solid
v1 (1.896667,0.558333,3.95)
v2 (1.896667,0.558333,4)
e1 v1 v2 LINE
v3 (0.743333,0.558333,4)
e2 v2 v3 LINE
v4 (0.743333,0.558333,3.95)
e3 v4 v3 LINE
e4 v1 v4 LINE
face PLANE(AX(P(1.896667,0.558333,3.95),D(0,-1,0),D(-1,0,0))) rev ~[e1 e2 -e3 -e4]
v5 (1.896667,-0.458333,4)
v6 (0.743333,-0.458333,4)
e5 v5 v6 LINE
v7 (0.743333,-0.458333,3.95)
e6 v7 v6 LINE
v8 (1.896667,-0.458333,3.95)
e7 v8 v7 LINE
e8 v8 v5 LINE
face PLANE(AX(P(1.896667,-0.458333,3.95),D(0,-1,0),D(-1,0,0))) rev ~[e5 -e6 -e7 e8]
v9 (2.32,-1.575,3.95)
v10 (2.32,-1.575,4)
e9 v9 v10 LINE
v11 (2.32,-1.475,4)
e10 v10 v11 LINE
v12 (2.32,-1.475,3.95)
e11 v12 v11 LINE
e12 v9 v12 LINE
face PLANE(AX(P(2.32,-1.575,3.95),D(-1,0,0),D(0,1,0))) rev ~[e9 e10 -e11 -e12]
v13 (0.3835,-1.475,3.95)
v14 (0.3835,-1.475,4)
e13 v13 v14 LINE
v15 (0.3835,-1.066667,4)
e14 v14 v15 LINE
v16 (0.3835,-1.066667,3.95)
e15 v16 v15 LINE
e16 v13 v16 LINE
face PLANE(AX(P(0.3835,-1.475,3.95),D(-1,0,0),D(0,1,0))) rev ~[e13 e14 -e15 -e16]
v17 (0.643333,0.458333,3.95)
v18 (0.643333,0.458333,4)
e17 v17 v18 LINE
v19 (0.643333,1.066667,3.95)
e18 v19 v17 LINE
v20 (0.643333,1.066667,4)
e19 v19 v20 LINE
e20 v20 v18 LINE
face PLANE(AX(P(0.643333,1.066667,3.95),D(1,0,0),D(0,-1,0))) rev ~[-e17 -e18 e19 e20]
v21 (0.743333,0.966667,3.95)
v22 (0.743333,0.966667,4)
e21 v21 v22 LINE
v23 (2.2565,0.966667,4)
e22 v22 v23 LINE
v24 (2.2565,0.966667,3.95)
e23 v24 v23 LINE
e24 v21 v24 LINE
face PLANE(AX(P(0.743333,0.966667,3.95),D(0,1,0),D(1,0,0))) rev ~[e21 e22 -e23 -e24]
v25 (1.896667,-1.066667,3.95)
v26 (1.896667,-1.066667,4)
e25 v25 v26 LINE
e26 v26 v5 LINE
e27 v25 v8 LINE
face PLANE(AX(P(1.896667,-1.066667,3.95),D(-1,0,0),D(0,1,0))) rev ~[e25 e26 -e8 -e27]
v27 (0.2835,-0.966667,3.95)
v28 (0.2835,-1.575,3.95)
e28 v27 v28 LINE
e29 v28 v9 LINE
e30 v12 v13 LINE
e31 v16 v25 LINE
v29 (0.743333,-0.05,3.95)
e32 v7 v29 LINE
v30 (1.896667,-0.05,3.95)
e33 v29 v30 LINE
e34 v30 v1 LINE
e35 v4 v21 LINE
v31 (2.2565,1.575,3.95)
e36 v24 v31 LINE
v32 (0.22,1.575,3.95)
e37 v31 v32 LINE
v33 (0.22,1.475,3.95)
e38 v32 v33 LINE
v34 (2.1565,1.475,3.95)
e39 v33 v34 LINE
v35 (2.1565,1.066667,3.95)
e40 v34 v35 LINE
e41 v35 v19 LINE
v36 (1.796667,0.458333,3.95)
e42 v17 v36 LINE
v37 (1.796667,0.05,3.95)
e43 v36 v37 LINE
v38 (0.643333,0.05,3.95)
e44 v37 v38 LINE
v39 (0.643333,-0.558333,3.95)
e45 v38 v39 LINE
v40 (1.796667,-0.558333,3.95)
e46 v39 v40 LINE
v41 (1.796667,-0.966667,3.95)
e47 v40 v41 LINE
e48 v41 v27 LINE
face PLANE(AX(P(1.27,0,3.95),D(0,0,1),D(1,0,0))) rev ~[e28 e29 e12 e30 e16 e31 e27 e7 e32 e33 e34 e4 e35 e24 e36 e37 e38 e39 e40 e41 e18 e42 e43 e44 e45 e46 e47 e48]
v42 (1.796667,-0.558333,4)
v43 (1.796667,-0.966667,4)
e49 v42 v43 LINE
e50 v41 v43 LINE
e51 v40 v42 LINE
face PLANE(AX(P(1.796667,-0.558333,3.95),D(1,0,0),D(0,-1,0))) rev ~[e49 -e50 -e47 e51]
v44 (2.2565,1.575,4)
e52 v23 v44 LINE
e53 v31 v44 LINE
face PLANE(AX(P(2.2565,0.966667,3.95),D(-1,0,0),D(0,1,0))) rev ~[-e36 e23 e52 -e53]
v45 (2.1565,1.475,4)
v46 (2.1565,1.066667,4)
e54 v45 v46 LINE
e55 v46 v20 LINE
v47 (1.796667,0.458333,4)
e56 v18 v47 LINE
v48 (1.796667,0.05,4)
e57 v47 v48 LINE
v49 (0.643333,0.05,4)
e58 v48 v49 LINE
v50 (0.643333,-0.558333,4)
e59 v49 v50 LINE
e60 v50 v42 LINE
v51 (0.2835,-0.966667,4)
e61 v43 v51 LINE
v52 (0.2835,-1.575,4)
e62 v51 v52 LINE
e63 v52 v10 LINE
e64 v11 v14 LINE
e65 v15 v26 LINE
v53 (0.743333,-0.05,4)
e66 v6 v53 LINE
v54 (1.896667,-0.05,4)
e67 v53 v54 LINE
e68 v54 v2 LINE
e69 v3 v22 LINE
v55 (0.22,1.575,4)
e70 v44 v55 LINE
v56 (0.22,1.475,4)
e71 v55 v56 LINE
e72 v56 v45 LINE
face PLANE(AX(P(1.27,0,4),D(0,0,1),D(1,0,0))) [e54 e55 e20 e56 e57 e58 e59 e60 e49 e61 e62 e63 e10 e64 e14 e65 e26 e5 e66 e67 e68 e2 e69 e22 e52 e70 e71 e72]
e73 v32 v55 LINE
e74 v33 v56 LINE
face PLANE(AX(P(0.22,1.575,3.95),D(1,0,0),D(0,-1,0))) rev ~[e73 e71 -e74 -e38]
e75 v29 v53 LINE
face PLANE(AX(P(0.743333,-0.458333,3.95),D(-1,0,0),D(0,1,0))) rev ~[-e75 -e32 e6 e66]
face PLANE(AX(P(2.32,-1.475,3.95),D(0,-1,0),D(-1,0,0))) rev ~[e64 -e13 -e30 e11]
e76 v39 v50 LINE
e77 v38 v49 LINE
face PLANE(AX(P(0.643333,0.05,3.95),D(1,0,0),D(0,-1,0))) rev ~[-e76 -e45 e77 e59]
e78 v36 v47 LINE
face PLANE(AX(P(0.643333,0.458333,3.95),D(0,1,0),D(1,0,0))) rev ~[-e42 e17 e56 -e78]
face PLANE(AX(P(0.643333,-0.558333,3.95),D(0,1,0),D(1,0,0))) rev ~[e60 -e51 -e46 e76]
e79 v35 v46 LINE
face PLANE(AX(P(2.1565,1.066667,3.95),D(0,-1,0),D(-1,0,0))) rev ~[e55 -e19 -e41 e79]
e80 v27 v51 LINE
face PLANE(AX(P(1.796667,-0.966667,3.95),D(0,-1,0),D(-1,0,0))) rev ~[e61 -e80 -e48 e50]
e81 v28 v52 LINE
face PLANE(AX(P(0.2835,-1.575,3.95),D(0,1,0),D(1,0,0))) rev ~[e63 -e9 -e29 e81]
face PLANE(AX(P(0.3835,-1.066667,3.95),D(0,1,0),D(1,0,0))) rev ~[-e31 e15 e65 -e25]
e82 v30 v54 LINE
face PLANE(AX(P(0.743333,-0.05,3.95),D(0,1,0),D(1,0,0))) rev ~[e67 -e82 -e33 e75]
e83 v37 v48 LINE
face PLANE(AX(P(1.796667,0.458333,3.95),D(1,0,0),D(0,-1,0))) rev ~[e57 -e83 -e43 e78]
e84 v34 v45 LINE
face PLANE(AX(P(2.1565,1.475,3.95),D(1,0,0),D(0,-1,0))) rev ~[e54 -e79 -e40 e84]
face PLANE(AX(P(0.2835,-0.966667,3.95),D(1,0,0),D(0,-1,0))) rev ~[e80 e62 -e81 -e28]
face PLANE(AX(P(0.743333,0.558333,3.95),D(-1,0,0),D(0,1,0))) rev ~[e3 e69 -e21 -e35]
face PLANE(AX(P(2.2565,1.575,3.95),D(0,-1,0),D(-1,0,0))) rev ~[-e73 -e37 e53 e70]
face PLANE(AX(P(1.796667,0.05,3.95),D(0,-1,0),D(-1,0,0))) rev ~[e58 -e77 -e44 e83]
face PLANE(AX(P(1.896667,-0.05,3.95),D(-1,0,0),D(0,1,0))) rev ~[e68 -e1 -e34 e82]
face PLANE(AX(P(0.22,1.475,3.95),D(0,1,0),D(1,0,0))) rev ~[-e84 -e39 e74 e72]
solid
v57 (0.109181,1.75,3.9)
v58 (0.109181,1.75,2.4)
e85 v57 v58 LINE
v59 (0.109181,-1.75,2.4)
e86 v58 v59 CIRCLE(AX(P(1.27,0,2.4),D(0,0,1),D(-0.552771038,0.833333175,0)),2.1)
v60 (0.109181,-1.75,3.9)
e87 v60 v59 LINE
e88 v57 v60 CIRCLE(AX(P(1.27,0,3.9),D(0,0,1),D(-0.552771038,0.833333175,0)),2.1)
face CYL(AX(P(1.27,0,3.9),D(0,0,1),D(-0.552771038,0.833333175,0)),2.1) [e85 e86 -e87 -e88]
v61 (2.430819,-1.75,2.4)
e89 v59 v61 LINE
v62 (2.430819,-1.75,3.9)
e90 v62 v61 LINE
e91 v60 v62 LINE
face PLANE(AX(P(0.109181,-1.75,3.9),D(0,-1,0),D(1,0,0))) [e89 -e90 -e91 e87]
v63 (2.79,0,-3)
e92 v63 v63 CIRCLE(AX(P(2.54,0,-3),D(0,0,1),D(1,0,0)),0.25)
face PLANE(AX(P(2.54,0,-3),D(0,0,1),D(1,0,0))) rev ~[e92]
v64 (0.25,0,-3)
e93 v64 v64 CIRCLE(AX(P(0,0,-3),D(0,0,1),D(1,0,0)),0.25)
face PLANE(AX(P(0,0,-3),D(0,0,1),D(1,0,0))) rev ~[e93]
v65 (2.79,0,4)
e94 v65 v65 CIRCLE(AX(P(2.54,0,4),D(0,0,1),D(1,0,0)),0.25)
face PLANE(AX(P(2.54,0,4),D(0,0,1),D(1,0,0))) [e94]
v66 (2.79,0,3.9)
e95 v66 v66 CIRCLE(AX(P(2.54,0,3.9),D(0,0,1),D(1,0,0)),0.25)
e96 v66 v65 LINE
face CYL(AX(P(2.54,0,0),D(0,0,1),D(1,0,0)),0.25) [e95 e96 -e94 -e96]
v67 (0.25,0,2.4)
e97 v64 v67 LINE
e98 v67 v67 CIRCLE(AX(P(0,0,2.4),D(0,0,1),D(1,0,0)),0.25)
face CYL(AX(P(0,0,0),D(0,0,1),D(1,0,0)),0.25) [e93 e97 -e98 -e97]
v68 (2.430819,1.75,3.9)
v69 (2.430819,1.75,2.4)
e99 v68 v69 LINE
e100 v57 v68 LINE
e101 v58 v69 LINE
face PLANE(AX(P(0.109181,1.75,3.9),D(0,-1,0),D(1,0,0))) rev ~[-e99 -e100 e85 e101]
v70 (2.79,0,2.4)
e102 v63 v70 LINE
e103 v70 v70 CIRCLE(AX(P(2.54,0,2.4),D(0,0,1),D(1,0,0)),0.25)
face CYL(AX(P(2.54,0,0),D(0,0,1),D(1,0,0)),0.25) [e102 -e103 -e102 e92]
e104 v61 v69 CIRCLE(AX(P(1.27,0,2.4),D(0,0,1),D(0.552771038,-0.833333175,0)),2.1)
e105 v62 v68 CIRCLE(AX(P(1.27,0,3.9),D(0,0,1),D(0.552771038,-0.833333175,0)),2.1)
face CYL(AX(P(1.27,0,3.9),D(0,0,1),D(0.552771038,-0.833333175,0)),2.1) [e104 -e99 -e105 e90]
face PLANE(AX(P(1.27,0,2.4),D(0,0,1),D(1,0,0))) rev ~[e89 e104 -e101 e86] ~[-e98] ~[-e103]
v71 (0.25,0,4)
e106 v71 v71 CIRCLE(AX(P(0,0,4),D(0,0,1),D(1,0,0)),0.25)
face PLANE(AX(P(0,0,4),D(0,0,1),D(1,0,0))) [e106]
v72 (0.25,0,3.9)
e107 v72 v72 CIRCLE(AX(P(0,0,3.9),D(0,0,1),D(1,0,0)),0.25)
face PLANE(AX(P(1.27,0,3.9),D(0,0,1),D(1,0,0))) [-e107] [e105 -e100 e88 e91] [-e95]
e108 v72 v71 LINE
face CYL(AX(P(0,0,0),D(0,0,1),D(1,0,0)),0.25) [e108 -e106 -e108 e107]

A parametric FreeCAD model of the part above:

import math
import FreeCAD as App
import Part
import Sketcher
from FreeCAD import Vector
Q = App.Units.Quantity

doc = App.newDocument("Part")
body = doc.addObject("PartDesign::Body", "Body")

sketch1 = body.newObject("Sketcher::SketchObject", "Sketch")
sketch1.AttachmentSupport = (doc.getObject("XY_Plane"), [""])
sketch1.MapMode = "FlatFace"
sketch1.AttachmentOffset = App.Placement(Vector(0, 0, 3.9), App.Rotation())
sketch1.addGeometry(Part.ArcOfCircle(Part.Circle(Vector(1.3, 0, 0), Vector(0, 0, 1), 2.1), math.radians(124), math.radians(236)), False)
sketch1.addGeometry(Part.LineSegment(Vector(0.1, -1.8, 0), Vector(2.4, -1.8, 0)), False)
sketch1.addGeometry(Part.ArcOfCircle(Part.Circle(Vector(1.3, 0, 0), Vector(0, 0, 1), 2.1), math.radians(-56), math.radians(56)), False)
sketch1.addGeometry(Part.LineSegment(Vector(2.4, 1.8, 0), Vector(0.1, 1.8, 0)), False)
sketch1.addConstraint(Sketcher.Constraint("Coincident", 0, 2, 1, 1))
sketch1.addConstraint(Sketcher.Constraint("Coincident", 1, 2, 2, 1))
sketch1.addConstraint(Sketcher.Constraint("Coincident", 2, 2, 3, 1))
sketch1.addConstraint(Sketcher.Constraint("Coincident", 3, 2, 0, 1))
sketch1.addConstraint(Sketcher.Constraint("Horizontal", 1))
sketch1.addConstraint(Sketcher.Constraint("Horizontal", 3))
sketch1.addConstraint(Sketcher.Constraint("Coincident", 2, 3, 0, 3))
sketch1.addConstraint(Sketcher.Constraint("Equal", 0, 2))
sketch1.addConstraint(Sketcher.Constraint("Symmetric", 1, 2, 2, 2, -1))
sketch1.addConstraint(Sketcher.Constraint("Radius", 0, Q("2.1 mm")))
sketch1.addConstraint(Sketcher.Constraint("DistanceY", 1, 2, 2, 2, Q("3.5 mm")))
sketch1.addConstraint(Sketcher.Constraint("DistanceX", -1, 1, 0, 3, Q("1.27 mm")))
pad1 = body.newObject("PartDesign::Pad", "Pad")
pad1.Profile = sketch1
pad1.Length = 1.5
pad1.Reversed = True
body2 = doc.addObject("PartDesign::Body", "Body001")
body2.AllowCompound = True

sketch2 = body2.newObject("Sketcher::SketchObject", "Sketch001")
sketch2.AttachmentSupport = (doc.getObject("XY_Plane001"), [""])
sketch2.MapMode = "FlatFace"
sketch2.addGeometry(Part.Circle(Vector(0, 0, 0), Vector(0, 0, 1), 0.25), False)
sketch2.addGeometry(Part.Circle(Vector(2.54, 0, 0), Vector(0, 0, 1), 0.25), False)
sketch2.addConstraint(Sketcher.Constraint("Coincident", 0, 3, -1, 1))
sketch2.addConstraint(Sketcher.Constraint("Equal", 0, 1))
sketch2.addConstraint(Sketcher.Constraint("PointOnObject", 1, 3, -1))
sketch2.addConstraint(Sketcher.Constraint("Diameter", 0, Q("0.5 mm")))
sketch2.addConstraint(Sketcher.Constraint("DistanceX", -1, 1, 1, 3, Q("2.54 mm")))
pad2 = body2.newObject("PartDesign::Pad", "Pad001")
pad2.Profile = sketch2
pad2.Type = "TwoLengths"
pad2.Length = 4
pad2.Length2 = 3
body3 = doc.addObject("PartDesign::Body", "Body002")
body3.AllowCompound = True

sketch3 = body3.newObject("Sketcher::SketchObject", "Sketch002")
sketch3.AttachmentSupport = (doc.getObject("XY_Plane002"), [""])
sketch3.MapMode = "FlatFace"
sketch3.AttachmentOffset = App.Placement(Vector(0, 0, 3.95), App.Rotation())
sketch3.addGeometry(Part.LineSegment(Vector(0.22, 1.48, 0), Vector(2.16, 1.48, 0)), False)
sketch3.addGeometry(Part.LineSegment(Vector(2.16, 1.48, 0), Vector(2.16, 1.07, 0)), False)
sketch3.addGeometry(Part.LineSegment(Vector(2.16, 1.07, 0), Vector(0.64, 1.07, 0)), False)
sketch3.addGeometry(Part.LineSegment(Vector(0.64, 1.07, 0), Vector(0.64, 0.46, 0)), False)
sketch3.addGeometry(Part.LineSegment(Vector(0.64, 0.46, 0), Vector(1.8, 0.46, 0)), False)
sketch3.addGeometry(Part.LineSegment(Vector(1.8, 0.46, 0), Vector(1.8, 0.05, 0)), False)
sketch3.addGeometry(Part.LineSegment(Vector(1.8, 0.05, 0), Vector(0.64, 0.05, 0)), False)
sketch3.addGeometry(Part.LineSegment(Vector(0.64, 0.05, 0), Vector(0.64, -0.56, 0)), False)
sketch3.addGeometry(Part.LineSegment(Vector(0.64, -0.56, 0), Vector(1.8, -0.56, 0)), False)
sketch3.addGeometry(Part.LineSegment(Vector(1.8, -0.56, 0), Vector(1.8, -0.97, 0)), False)
sketch3.addGeometry(Part.LineSegment(Vector(1.8, -0.97, 0), Vector(0.28, -0.97, 0)), False)
sketch3.addGeometry(Part.LineSegment(Vector(0.28, -0.97, 0), Vector(0.28, -1.57, 0)), False)
sketch3.addGeometry(Part.LineSegment(Vector(0.28, -1.57, 0), Vector(2.32, -1.57, 0)), False)
sketch3.addGeometry(Part.LineSegment(Vector(2.32, -1.57, 0), Vector(2.32, -1.48, 0)), False)
sketch3.addGeometry(Part.LineSegment(Vector(2.32, -1.48, 0), Vector(0.38, -1.48, 0)), False)
sketch3.addGeometry(Part.LineSegment(Vector(0.38, -1.48, 0), Vector(0.38, -1.07, 0)), False)
sketch3.addGeometry(Part.LineSegment(Vector(0.38, -1.07, 0), Vector(1.9, -1.07, 0)), False)
sketch3.addGeometry(Part.LineSegment(Vector(1.9, -1.07, 0), Vector(1.9, -0.46, 0)), False)
sketch3.addGeometry(Part.LineSegment(Vector(1.9, -0.46, 0), Vector(0.74, -0.46, 0)), False)
sketch3.addGeometry(Part.LineSegment(Vector(0.74, -0.46, 0), Vector(0.74, -0.05, 0)), False)
sketch3.addGeometry(Part.LineSegment(Vector(0.74, -0.05, 0), Vector(1.9, -0.05, 0)), False)
sketch3.addGeometry(Part.LineSegment(Vector(1.9, -0.05, 0), Vector(1.9, 0.56, 0)), False)
sketch3.addGeometry(Part.LineSegment(Vector(1.9, 0.56, 0), Vector(0.74, 0.56, 0)), False)
sketch3.addGeometry(Part.LineSegment(Vector(0.74, 0.56, 0), Vector(0.74, 0.97, 0)), False)
sketch3.addGeometry(Part.LineSegment(Vector(0.74, 0.97, 0), Vector(2.26, 0.97, 0)), False)
sketch3.addGeometry(Part.LineSegment(Vector(2.26, 0.97, 0), Vector(2.26, 1.57, 0)), False)
sketch3.addGeometry(Part.LineSegment(Vector(2.26, 1.57, 0), Vector(0.22, 1.57, 0)), False)
sketch3.addGeometry(Part.LineSegment(Vector(0.22, 1.57, 0), Vector(0.22, 1.48, 0)), False)
sketch3.addConstraint(Sketcher.Constraint("Coincident", 0, 2, 1, 1))
sketch3.addConstraint(Sketcher.Constraint("Coincident", 1, 2, 2, 1))
sketch3.addConstraint(Sketcher.Constraint("Coincident", 2, 2, 3, 1))
sketch3.addConstraint(Sketcher.Constraint("Coincident", 3, 2, 4, 1))
sketch3.addConstraint(Sketcher.Constraint("Coincident", 4, 2, 5, 1))
sketch3.addConstraint(Sketcher.Constraint("Coincident", 5, 2, 6, 1))
sketch3.addConstraint(Sketcher.Constraint("Coincident", 6, 2, 7, 1))
sketch3.addConstraint(Sketcher.Constraint("Coincident", 7, 2, 8, 1))
sketch3.addConstraint(Sketcher.Constraint("Coincident", 8, 2, 9, 1))
sketch3.addConstraint(Sketcher.Constraint("Coincident", 9, 2, 10, 1))
sketch3.addConstraint(Sketcher.Constraint("Coincident", 10, 2, 11, 1))
sketch3.addConstraint(Sketcher.Constraint("Coincident", 11, 2, 12, 1))
sketch3.addConstraint(Sketcher.Constraint("Coincident", 12, 2, 13, 1))
sketch3.addConstraint(Sketcher.Constraint("Coincident", 13, 2, 14, 1))
sketch3.addConstraint(Sketcher.Constraint("Coincident", 14, 2, 15, 1))
sketch3.addConstraint(Sketcher.Constraint("Coincident", 15, 2, 16, 1))
sketch3.addConstraint(Sketcher.Constraint("Coincident", 16, 2, 17, 1))
sketch3.addConstraint(Sketcher.Constraint("Coincident", 17, 2, 18, 1))
sketch3.addConstraint(Sketcher.Constraint("Coincident", 18, 2, 19, 1))
sketch3.addConstraint(Sketcher.Constraint("Coincident", 19, 2, 20, 1))
sketch3.addConstraint(Sketcher.Constraint("Coincident", 20, 2, 21, 1))
sketch3.addConstraint(Sketcher.Constraint("Coincident", 21, 2, 22, 1))
sketch3.addConstraint(Sketcher.Constraint("Coincident", 22, 2, 23, 1))
sketch3.addConstraint(Sketcher.Constraint("Coincident", 23, 2, 24, 1))
sketch3.addConstraint(Sketcher.Constraint("Coincident", 24, 2, 25, 1))
sketch3.addConstraint(Sketcher.Constraint("Coincident", 25, 2, 26, 1))
sketch3.addConstraint(Sketcher.Constraint("Coincident", 26, 2, 27, 1))
sketch3.addConstraint(Sketcher.Constraint("Coincident", 27, 2, 0, 1))
sketch3.addConstraint(Sketcher.Constraint("Horizontal", 0))
sketch3.addConstraint(Sketcher.Constraint("Vertical", 1))
sketch3.addConstraint(Sketcher.Constraint("Horizontal", 2))
sketch3.addConstraint(Sketcher.Constraint("Vertical", 3))
sketch3.addConstraint(Sketcher.Constraint("Horizontal", 4))
sketch3.addConstraint(Sketcher.Constraint("Vertical", 5))
sketch3.addConstraint(Sketcher.Constraint("Horizontal", 6))
sketch3.addConstraint(Sketcher.Constraint("Vertical", 7))
sketch3.addConstraint(Sketcher.Constraint("Horizontal", 8))
sketch3.addConstraint(Sketcher.Constraint("Vertical", 9))
sketch3.addConstraint(Sketcher.Constraint("Horizontal", 10))
sketch3.addConstraint(Sketcher.Constraint("Vertical", 11))
sketch3.addConstraint(Sketcher.Constraint("Horizontal", 12))
sketch3.addConstraint(Sketcher.Constraint("Vertical", 13))
sketch3.addConstraint(Sketcher.Constraint("Horizontal", 14))
sketch3.addConstraint(Sketcher.Constraint("Vertical", 15))
sketch3.addConstraint(Sketcher.Constraint("Horizontal", 16))
sketch3.addConstraint(Sketcher.Constraint("Vertical", 17))
sketch3.addConstraint(Sketcher.Constraint("Horizontal", 18))
sketch3.addConstraint(Sketcher.Constraint("Vertical", 19))
sketch3.addConstraint(Sketcher.Constraint("Horizontal", 20))
sketch3.addConstraint(Sketcher.Constraint("Vertical", 21))
sketch3.addConstraint(Sketcher.Constraint("Horizontal", 22))
sketch3.addConstraint(Sketcher.Constraint("Vertical", 23))
sketch3.addConstraint(Sketcher.Constraint("Horizontal", 24))
sketch3.addConstraint(Sketcher.Constraint("Vertical", 25))
sketch3.addConstraint(Sketcher.Constraint("Horizontal", 26))
sketch3.addConstraint(Sketcher.Constraint("Vertical", 27))
sketch3.addConstraint(Sketcher.Constraint("Vertical", 3, 2, 6, 2))
sketch3.addConstraint(Sketcher.Constraint("Vertical", 5, 2, 8, 2))
sketch3.addConstraint(Sketcher.Constraint("Vertical", 17, 2, 20, 2))
sketch3.addConstraint(Sketcher.Constraint("Vertical", 19, 2, 22, 2))
sketch3.addConstraint(Sketcher.Constraint("Equal", 2, 10))
sketch3.addConstraint(Sketcher.Constraint("Equal", 0, 14))
sketch3.addConstraint(Sketcher.Constraint("Equal", 10, 16))
sketch3.addConstraint(Sketcher.Constraint("Equal", 8, 18))
sketch3.addConstraint(Sketcher.Constraint("Equal", 16, 24))
sketch3.addConstraint(Sketcher.Constraint("Equal", 1, 5))
sketch3.addConstraint(Sketcher.Constraint("Equal", 3, 7))
sketch3.addConstraint(Sketcher.Constraint("Equal", 5, 9))
sketch3.addConstraint(Sketcher.Constraint("Equal", 7, 11))
sketch3.addConstraint(Sketcher.Constraint("Equal", 9, 15))
sketch3.addConstraint(Sketcher.Constraint("Equal", 11, 17))
sketch3.addConstraint(Sketcher.Constraint("Equal", 15, 19))
sketch3.addConstraint(Sketcher.Constraint("Equal", 17, 21))
sketch3.addConstraint(Sketcher.Constraint("Equal", 19, 23))
sketch3.addConstraint(Sketcher.Constraint("Equal", 21, 25))
sketch3.addConstraint(Sketcher.Constraint("DistanceY", 13, 1, 13, 2, Q("0.1 mm")))
sketch3.addConstraint(Sketcher.Constraint("DistanceX", 11, 2, 14, 2, Q("0.1 mm")))
sketch3.addConstraint(Sketcher.Constraint("DistanceY", 15, 2, 10, 2, Q("0.1 mm")))
sketch3.addConstraint(Sketcher.Constraint("DistanceY", -1, 1, 5, 2, Q("0.05 mm")))
sketch3.addConstraint(Sketcher.Constraint("DistanceX", -1, 1, 12, 2, Q("2.32 mm")))
sketch3.addConstraint(Sketcher.Constraint("DistanceX", -1, 1, 26, 2, Q("0.22 mm")))
sketch3.addConstraint(Sketcher.Constraint("DistanceX", 0, 1, 0, 2, Q("1.9365 mm")))
sketch3.addConstraint(Sketcher.Constraint("DistanceY", -1, 1, 0, 2, Q("1.475 mm")))
sketch3.addConstraint(Sketcher.Constraint("DistanceX", 2, 2, 2, 1, Q("1.513167 mm")))
pad3 = body3.newObject("PartDesign::Pad", "Pad002")
pad3.Profile = sketch3
pad3.Length = 0.05
doc.recompute()

boolean = body3.newObject("PartDesign::Boolean", "Boolean")
boolean.Type = "Fuse"
boolean.addObjects([body])
doc.recompute()

boolean2 = body3.newObject("PartDesign::Boolean", "Boolean001")
boolean2.Type = "Fuse"
boolean2.addObjects([body2])

doc.recompute()
